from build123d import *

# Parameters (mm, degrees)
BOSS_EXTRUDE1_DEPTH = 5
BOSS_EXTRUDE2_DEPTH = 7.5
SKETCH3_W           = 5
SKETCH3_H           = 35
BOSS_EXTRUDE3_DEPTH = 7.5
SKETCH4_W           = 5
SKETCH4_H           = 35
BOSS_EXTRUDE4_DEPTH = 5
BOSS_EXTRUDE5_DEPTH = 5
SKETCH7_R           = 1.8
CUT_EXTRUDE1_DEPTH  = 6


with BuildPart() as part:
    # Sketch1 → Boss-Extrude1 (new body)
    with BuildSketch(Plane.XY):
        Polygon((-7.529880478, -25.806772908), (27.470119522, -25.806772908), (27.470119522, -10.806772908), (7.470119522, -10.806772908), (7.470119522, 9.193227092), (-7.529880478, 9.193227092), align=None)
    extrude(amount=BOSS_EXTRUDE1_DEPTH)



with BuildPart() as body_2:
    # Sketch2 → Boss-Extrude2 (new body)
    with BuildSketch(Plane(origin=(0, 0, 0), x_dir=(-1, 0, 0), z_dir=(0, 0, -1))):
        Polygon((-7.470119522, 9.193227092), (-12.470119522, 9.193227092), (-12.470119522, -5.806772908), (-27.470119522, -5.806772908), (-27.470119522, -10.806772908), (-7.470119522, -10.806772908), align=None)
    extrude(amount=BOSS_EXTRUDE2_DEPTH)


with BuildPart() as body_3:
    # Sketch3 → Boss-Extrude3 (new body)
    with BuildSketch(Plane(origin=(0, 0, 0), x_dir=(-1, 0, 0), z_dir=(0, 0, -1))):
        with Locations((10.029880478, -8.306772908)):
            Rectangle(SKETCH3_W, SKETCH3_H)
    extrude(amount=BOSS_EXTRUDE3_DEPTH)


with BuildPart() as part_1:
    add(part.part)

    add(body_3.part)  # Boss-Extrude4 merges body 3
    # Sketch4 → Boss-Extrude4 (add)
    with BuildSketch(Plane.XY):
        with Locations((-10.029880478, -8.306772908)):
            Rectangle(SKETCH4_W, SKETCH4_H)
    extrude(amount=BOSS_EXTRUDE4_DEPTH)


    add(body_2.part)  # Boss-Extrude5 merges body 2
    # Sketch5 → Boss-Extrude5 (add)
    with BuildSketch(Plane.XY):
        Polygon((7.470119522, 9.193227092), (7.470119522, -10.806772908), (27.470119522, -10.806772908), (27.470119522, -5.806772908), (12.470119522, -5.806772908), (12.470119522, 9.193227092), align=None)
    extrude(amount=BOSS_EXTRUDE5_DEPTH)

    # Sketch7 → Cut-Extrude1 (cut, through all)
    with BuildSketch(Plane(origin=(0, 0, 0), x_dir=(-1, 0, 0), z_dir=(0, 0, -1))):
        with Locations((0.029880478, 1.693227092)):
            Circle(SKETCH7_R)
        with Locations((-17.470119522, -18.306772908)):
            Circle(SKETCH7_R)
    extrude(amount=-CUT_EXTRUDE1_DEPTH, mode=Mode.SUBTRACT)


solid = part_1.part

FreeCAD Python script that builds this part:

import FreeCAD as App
import Part
import Sketcher


def add_polygon(sketch, points):
    """Adds a closed chain of lines whose ends are joined by coincident constraints."""
    first, n = sketch.GeometryCount, len(points)
    for a, b in zip(points, points[1:] + points[:1]):
        sketch.addGeometry(Part.LineSegment(App.Vector(*a, 0), App.Vector(*b, 0)), False)
    for i in range(n):
        sketch.addConstraint(Sketcher.Constraint("Coincident", first + i, 2, first + (i + 1) % n, 1))

doc = App.newDocument("Part")
body = doc.addObject("PartDesign::Body", "Body")

# Sketch on XY plane
sketch1 = doc.addObject("Sketcher::SketchObject", "Sketch")
body.addObject(sketch1)
sketch1.AttachmentSupport = (doc.XY_Plane, [""])
sketch1.MapMode = "FlatFace"
add_polygon(sketch1, [(-8, -26), (27, -26), (27, -11), (7, -11), (7, 9), (-8, 9)])  # lines 0-5
sketch1.addConstraint(Sketcher.Constraint("Horizontal", 0))
sketch1.addConstraint(Sketcher.Constraint("Vertical", 1))
sketch1.addConstraint(Sketcher.Constraint("Horizontal", 2))
sketch1.addConstraint(Sketcher.Constraint("Vertical", 3))
sketch1.addConstraint(Sketcher.Constraint("Horizontal", 4))
sketch1.addConstraint(Sketcher.Constraint("Vertical", 5))
sketch1.addConstraint(Sketcher.Constraint("Equal", 4, 1))
sketch1.addConstraint(Sketcher.Constraint("Equal", 2, 3))
sketch1.addConstraint(Sketcher.Constraint("DistanceX", 0, 1, 0, 2, 35.0))
sketch1.addConstraint(Sketcher.Constraint("DistanceX", 2, 2, 2, 1, 20.0))
sketch1.addConstraint(Sketcher.Constraint("DistanceX", -1, 1, 0, 2, 27.47012))
sketch1.addConstraint(Sketcher.Constraint("DistanceY", 0, 2, -1, 1, 25.806773))
pad1 = doc.addObject("PartDesign::Pad", "Pad")
body.addObject(pad1)
pad1.Profile = sketch1
pad1.Length = 5
body2 = doc.addObject("PartDesign::Body", "Body001")

# Sketch on XY plane
sketch2 = doc.addObject("Sketcher::SketchObject", "Sketch001")
body2.addObject(sketch2)
sketch2.AttachmentSupport = (doc.getObject("XY_Plane001"), [""])
sketch2.MapMode = "FlatFace"
add_polygon(sketch2, [(7.5, 9.2), (12.5, 9.2), (12.5, -5.8), (27.5, -5.8), (27.5, -10.8), (7.5, -10.8)])  # lines 0-5
sketch2.addConstraint(Sketcher.Constraint("Horizontal", 0))
sketch2.addConstraint(Sketcher.Constraint("Vertical", 1))
sketch2.addConstraint(Sketcher.Constraint("Horizontal", 2))
sketch2.addConstraint(Sketcher.Constraint("Vertical", 3))
sketch2.addConstraint(Sketcher.Constraint("Horizontal", 4))
sketch2.addConstraint(Sketcher.Constraint("Vertical", 5))
sketch2.addConstraint(Sketcher.Constraint("Equal", 2, 1))
sketch2.addConstraint(Sketcher.Constraint("Equal", 0, 3))
sketch2.addConstraint(Sketcher.Constraint("DistanceX", 0, 1, 0, 2, 5.0))
sketch2.addConstraint(Sketcher.Constraint("DistanceX", 2, 1, 2, 2, 15.0))
sketch2.addConstraint(Sketcher.Constraint("DistanceX", -1, 1, 0, 2, 12.47012))
sketch2.addConstraint(Sketcher.Constraint("DistanceY", -1, 1, 0, 2, 9.193227))
pad2 = doc.addObject("PartDesign::Pad", "Pad001")
body2.addObject(pad2)
pad2.Profile = sketch2
pad2.Length = 7.5
pad2.Reversed = True
body3 = doc.addObject("PartDesign::Body", "Body002")

# Sketch on XY plane
sketch3 = doc.addObject("Sketcher::SketchObject", "Sketch002")
body3.addObject(sketch3)
sketch3.AttachmentSupport = (doc.getObject("XY_Plane002"), [""])
sketch3.MapMode = "FlatFace"
add_polygon(sketch3, [(-8, 9), (-8, -26), (-13, -26), (-13, 9)])  # lines 0-3
sketch3.addConstraint(Sketcher.Constraint("Vertical", 0))
sketch3.addConstraint(Sketcher.Constraint("Horizontal", 1))
sketch3.addConstraint(Sketcher.Constraint("Vertical", 2))
sketch3.addConstraint(Sketcher.Constraint("Horizontal", 3))
sketch3.addConstraint(Sketcher.Constraint("DistanceX", 1, 2, 1, 1, 5.0))
sketch3.addConstraint(Sketcher.Constraint("DistanceY", 0, 2, 0, 1, 35.0))
sketch3.addConstraint(Sketcher.Constraint("DistanceX", 0, 2, -1, 1, 7.52988))
sketch3.addConstraint(Sketcher.Constraint("DistanceY", 0, 2, -1, 1, 25.806773))
pad3 = doc.addObject("PartDesign::Pad", "Pad002")
body3.addObject(pad3)
pad3.Profile = sketch3
pad3.Length = 7.5
pad3.Reversed = True
body.AllowCompound = True
doc.recompute()

boolean = doc.addObject("PartDesign::Boolean", "Boolean")
body.addObject(boolean)
boolean.Type = "Fuse"
boolean.addObjects([body3])

# Sketch on XY plane
sketch4 = doc.addObject("Sketcher::SketchObject", "Sketch003")
body.addObject(sketch4)
sketch4.AttachmentSupport = (doc.XY_Plane, [""])
sketch4.MapMode = "FlatFace"
add_polygon(sketch4, [(-13, 9), (-13, -26), (-8, -26), (-8, 9)])  # lines 0-3
sketch4.addConstraint(Sketcher.Constraint("Vertical", 0))
sketch4.addConstraint(Sketcher.Constraint("Horizontal", 1))
sketch4.addConstraint(Sketcher.Constraint("Vertical", 2))
sketch4.addConstraint(Sketcher.Constraint("Horizontal", 3))
sketch4.addConstraint(Sketcher.Constraint("DistanceX", 1, 1, 1, 2, 5.0))
sketch4.addConstraint(Sketcher.Constraint("DistanceY", 0, 2, 0, 1, 35.0))
sketch4.addConstraint(Sketcher.Constraint("DistanceX", 0, 2, -1, 1, 12.52988))
sketch4.addConstraint(Sketcher.Constraint("DistanceY", 0, 2, -1, 1, 25.806773))
pad4 = doc.addObject("PartDesign::Pad", "Pad003")
body.addObject(pad4)
pad4.Profile = sketch4
pad4.Length = 5
doc.recompute()

boolean2 = doc.addObject("PartDesign::Boolean", "Boolean001")
body.addObject(boolean2)
boolean2.Type = "Fuse"
boolean2.addObjects([body2])

# Sketch on XY plane
sketch5 = doc.addObject("Sketcher::SketchObject", "Sketch004")
body.addObject(sketch5)
sketch5.AttachmentSupport = (doc.XY_Plane, [""])
sketch5.MapMode = "FlatFace"
add_polygon(sketch5, [(7.5, 9.2), (7.5, -10.8), (27.5, -10.8), (27.5, -5.8), (12.5, -5.8), (12.5, 9.2)])  # lines 0-5
sketch5.addConstraint(Sketcher.Constraint("Vertical", 0))
sketch5.addConstraint(Sketcher.Constraint("Horizontal", 1))
sketch5.addConstraint(Sketcher.Constraint("Vertical", 2))
sketch5.addConstraint(Sketcher.Constraint("Horizontal", 3))
sketch5.addConstraint(Sketcher.Constraint("Vertical", 4))
sketch5.addConstraint(Sketcher.Constraint("Horizontal", 5))
sketch5.addConstraint(Sketcher.Constraint("Equal", 1, 0))
sketch5.addConstraint(Sketcher.Constraint("Equal", 5, 2))
sketch5.addConstraint(Sketcher.Constraint("DistanceX", 1, 1, 1, 2, 20.0))
sketch5.addConstraint(Sketcher.Constraint("DistanceX", 3, 2, 3, 1, 15.0))
sketch5.addConstraint(Sketcher.Constraint("DistanceX", -1, 1, 0, 2, 7.47012))
sketch5.addConstraint(Sketcher.Constraint("DistanceY", 0, 2, -1, 1, 10.806773))
pad5 = doc.addObject("PartDesign::Pad", "Pad004")
body.addObject(pad5)
pad5.Profile = sketch5
pad5.Length = 5

# Sketch on XY plane
sketch6 = doc.addObject("Sketcher::SketchObject", "Sketch005")
body.addObject(sketch6)
sketch6.AttachmentSupport = (doc.XY_Plane, [""])
sketch6.MapMode = "FlatFace"
sketch6.addGeometry(Part.Circle(App.Vector(0, 1.7, 0), App.Vector(0, 0, 1), 1.8), False)
sketch6.addGeometry(Part.Circle(App.Vector(17.5, -18.3, 0), App.Vector(0, 0, 1), 1.8), False)
sketch6.addConstraint(Sketcher.Constraint("Equal", 0, 1))
sketch6.addConstraint(Sketcher.Constraint("Diameter", 0, 3.6))
sketch6.addConstraint(Sketcher.Constraint("DistanceY", 1, 3, 0, 3, 20.0))
sketch6.addConstraint(Sketcher.Constraint("DistanceX", 0, 3, 1, 3, 17.5))
sketch6.addConstraint(Sketcher.Constraint("DistanceX", 0, 3, -1, 1, 0.02988))
sketch6.addConstraint(Sketcher.Constraint("DistanceY", -1, 1, 0, 3, 1.693227))
pocket1 = doc.addObject("PartDesign::Pocket", "Pocket")
body.addObject(pocket1)
pocket1.Profile = sketch6
pocket1.Type = "ThroughAll"
pocket1.Reversed = True

doc.recompute()
